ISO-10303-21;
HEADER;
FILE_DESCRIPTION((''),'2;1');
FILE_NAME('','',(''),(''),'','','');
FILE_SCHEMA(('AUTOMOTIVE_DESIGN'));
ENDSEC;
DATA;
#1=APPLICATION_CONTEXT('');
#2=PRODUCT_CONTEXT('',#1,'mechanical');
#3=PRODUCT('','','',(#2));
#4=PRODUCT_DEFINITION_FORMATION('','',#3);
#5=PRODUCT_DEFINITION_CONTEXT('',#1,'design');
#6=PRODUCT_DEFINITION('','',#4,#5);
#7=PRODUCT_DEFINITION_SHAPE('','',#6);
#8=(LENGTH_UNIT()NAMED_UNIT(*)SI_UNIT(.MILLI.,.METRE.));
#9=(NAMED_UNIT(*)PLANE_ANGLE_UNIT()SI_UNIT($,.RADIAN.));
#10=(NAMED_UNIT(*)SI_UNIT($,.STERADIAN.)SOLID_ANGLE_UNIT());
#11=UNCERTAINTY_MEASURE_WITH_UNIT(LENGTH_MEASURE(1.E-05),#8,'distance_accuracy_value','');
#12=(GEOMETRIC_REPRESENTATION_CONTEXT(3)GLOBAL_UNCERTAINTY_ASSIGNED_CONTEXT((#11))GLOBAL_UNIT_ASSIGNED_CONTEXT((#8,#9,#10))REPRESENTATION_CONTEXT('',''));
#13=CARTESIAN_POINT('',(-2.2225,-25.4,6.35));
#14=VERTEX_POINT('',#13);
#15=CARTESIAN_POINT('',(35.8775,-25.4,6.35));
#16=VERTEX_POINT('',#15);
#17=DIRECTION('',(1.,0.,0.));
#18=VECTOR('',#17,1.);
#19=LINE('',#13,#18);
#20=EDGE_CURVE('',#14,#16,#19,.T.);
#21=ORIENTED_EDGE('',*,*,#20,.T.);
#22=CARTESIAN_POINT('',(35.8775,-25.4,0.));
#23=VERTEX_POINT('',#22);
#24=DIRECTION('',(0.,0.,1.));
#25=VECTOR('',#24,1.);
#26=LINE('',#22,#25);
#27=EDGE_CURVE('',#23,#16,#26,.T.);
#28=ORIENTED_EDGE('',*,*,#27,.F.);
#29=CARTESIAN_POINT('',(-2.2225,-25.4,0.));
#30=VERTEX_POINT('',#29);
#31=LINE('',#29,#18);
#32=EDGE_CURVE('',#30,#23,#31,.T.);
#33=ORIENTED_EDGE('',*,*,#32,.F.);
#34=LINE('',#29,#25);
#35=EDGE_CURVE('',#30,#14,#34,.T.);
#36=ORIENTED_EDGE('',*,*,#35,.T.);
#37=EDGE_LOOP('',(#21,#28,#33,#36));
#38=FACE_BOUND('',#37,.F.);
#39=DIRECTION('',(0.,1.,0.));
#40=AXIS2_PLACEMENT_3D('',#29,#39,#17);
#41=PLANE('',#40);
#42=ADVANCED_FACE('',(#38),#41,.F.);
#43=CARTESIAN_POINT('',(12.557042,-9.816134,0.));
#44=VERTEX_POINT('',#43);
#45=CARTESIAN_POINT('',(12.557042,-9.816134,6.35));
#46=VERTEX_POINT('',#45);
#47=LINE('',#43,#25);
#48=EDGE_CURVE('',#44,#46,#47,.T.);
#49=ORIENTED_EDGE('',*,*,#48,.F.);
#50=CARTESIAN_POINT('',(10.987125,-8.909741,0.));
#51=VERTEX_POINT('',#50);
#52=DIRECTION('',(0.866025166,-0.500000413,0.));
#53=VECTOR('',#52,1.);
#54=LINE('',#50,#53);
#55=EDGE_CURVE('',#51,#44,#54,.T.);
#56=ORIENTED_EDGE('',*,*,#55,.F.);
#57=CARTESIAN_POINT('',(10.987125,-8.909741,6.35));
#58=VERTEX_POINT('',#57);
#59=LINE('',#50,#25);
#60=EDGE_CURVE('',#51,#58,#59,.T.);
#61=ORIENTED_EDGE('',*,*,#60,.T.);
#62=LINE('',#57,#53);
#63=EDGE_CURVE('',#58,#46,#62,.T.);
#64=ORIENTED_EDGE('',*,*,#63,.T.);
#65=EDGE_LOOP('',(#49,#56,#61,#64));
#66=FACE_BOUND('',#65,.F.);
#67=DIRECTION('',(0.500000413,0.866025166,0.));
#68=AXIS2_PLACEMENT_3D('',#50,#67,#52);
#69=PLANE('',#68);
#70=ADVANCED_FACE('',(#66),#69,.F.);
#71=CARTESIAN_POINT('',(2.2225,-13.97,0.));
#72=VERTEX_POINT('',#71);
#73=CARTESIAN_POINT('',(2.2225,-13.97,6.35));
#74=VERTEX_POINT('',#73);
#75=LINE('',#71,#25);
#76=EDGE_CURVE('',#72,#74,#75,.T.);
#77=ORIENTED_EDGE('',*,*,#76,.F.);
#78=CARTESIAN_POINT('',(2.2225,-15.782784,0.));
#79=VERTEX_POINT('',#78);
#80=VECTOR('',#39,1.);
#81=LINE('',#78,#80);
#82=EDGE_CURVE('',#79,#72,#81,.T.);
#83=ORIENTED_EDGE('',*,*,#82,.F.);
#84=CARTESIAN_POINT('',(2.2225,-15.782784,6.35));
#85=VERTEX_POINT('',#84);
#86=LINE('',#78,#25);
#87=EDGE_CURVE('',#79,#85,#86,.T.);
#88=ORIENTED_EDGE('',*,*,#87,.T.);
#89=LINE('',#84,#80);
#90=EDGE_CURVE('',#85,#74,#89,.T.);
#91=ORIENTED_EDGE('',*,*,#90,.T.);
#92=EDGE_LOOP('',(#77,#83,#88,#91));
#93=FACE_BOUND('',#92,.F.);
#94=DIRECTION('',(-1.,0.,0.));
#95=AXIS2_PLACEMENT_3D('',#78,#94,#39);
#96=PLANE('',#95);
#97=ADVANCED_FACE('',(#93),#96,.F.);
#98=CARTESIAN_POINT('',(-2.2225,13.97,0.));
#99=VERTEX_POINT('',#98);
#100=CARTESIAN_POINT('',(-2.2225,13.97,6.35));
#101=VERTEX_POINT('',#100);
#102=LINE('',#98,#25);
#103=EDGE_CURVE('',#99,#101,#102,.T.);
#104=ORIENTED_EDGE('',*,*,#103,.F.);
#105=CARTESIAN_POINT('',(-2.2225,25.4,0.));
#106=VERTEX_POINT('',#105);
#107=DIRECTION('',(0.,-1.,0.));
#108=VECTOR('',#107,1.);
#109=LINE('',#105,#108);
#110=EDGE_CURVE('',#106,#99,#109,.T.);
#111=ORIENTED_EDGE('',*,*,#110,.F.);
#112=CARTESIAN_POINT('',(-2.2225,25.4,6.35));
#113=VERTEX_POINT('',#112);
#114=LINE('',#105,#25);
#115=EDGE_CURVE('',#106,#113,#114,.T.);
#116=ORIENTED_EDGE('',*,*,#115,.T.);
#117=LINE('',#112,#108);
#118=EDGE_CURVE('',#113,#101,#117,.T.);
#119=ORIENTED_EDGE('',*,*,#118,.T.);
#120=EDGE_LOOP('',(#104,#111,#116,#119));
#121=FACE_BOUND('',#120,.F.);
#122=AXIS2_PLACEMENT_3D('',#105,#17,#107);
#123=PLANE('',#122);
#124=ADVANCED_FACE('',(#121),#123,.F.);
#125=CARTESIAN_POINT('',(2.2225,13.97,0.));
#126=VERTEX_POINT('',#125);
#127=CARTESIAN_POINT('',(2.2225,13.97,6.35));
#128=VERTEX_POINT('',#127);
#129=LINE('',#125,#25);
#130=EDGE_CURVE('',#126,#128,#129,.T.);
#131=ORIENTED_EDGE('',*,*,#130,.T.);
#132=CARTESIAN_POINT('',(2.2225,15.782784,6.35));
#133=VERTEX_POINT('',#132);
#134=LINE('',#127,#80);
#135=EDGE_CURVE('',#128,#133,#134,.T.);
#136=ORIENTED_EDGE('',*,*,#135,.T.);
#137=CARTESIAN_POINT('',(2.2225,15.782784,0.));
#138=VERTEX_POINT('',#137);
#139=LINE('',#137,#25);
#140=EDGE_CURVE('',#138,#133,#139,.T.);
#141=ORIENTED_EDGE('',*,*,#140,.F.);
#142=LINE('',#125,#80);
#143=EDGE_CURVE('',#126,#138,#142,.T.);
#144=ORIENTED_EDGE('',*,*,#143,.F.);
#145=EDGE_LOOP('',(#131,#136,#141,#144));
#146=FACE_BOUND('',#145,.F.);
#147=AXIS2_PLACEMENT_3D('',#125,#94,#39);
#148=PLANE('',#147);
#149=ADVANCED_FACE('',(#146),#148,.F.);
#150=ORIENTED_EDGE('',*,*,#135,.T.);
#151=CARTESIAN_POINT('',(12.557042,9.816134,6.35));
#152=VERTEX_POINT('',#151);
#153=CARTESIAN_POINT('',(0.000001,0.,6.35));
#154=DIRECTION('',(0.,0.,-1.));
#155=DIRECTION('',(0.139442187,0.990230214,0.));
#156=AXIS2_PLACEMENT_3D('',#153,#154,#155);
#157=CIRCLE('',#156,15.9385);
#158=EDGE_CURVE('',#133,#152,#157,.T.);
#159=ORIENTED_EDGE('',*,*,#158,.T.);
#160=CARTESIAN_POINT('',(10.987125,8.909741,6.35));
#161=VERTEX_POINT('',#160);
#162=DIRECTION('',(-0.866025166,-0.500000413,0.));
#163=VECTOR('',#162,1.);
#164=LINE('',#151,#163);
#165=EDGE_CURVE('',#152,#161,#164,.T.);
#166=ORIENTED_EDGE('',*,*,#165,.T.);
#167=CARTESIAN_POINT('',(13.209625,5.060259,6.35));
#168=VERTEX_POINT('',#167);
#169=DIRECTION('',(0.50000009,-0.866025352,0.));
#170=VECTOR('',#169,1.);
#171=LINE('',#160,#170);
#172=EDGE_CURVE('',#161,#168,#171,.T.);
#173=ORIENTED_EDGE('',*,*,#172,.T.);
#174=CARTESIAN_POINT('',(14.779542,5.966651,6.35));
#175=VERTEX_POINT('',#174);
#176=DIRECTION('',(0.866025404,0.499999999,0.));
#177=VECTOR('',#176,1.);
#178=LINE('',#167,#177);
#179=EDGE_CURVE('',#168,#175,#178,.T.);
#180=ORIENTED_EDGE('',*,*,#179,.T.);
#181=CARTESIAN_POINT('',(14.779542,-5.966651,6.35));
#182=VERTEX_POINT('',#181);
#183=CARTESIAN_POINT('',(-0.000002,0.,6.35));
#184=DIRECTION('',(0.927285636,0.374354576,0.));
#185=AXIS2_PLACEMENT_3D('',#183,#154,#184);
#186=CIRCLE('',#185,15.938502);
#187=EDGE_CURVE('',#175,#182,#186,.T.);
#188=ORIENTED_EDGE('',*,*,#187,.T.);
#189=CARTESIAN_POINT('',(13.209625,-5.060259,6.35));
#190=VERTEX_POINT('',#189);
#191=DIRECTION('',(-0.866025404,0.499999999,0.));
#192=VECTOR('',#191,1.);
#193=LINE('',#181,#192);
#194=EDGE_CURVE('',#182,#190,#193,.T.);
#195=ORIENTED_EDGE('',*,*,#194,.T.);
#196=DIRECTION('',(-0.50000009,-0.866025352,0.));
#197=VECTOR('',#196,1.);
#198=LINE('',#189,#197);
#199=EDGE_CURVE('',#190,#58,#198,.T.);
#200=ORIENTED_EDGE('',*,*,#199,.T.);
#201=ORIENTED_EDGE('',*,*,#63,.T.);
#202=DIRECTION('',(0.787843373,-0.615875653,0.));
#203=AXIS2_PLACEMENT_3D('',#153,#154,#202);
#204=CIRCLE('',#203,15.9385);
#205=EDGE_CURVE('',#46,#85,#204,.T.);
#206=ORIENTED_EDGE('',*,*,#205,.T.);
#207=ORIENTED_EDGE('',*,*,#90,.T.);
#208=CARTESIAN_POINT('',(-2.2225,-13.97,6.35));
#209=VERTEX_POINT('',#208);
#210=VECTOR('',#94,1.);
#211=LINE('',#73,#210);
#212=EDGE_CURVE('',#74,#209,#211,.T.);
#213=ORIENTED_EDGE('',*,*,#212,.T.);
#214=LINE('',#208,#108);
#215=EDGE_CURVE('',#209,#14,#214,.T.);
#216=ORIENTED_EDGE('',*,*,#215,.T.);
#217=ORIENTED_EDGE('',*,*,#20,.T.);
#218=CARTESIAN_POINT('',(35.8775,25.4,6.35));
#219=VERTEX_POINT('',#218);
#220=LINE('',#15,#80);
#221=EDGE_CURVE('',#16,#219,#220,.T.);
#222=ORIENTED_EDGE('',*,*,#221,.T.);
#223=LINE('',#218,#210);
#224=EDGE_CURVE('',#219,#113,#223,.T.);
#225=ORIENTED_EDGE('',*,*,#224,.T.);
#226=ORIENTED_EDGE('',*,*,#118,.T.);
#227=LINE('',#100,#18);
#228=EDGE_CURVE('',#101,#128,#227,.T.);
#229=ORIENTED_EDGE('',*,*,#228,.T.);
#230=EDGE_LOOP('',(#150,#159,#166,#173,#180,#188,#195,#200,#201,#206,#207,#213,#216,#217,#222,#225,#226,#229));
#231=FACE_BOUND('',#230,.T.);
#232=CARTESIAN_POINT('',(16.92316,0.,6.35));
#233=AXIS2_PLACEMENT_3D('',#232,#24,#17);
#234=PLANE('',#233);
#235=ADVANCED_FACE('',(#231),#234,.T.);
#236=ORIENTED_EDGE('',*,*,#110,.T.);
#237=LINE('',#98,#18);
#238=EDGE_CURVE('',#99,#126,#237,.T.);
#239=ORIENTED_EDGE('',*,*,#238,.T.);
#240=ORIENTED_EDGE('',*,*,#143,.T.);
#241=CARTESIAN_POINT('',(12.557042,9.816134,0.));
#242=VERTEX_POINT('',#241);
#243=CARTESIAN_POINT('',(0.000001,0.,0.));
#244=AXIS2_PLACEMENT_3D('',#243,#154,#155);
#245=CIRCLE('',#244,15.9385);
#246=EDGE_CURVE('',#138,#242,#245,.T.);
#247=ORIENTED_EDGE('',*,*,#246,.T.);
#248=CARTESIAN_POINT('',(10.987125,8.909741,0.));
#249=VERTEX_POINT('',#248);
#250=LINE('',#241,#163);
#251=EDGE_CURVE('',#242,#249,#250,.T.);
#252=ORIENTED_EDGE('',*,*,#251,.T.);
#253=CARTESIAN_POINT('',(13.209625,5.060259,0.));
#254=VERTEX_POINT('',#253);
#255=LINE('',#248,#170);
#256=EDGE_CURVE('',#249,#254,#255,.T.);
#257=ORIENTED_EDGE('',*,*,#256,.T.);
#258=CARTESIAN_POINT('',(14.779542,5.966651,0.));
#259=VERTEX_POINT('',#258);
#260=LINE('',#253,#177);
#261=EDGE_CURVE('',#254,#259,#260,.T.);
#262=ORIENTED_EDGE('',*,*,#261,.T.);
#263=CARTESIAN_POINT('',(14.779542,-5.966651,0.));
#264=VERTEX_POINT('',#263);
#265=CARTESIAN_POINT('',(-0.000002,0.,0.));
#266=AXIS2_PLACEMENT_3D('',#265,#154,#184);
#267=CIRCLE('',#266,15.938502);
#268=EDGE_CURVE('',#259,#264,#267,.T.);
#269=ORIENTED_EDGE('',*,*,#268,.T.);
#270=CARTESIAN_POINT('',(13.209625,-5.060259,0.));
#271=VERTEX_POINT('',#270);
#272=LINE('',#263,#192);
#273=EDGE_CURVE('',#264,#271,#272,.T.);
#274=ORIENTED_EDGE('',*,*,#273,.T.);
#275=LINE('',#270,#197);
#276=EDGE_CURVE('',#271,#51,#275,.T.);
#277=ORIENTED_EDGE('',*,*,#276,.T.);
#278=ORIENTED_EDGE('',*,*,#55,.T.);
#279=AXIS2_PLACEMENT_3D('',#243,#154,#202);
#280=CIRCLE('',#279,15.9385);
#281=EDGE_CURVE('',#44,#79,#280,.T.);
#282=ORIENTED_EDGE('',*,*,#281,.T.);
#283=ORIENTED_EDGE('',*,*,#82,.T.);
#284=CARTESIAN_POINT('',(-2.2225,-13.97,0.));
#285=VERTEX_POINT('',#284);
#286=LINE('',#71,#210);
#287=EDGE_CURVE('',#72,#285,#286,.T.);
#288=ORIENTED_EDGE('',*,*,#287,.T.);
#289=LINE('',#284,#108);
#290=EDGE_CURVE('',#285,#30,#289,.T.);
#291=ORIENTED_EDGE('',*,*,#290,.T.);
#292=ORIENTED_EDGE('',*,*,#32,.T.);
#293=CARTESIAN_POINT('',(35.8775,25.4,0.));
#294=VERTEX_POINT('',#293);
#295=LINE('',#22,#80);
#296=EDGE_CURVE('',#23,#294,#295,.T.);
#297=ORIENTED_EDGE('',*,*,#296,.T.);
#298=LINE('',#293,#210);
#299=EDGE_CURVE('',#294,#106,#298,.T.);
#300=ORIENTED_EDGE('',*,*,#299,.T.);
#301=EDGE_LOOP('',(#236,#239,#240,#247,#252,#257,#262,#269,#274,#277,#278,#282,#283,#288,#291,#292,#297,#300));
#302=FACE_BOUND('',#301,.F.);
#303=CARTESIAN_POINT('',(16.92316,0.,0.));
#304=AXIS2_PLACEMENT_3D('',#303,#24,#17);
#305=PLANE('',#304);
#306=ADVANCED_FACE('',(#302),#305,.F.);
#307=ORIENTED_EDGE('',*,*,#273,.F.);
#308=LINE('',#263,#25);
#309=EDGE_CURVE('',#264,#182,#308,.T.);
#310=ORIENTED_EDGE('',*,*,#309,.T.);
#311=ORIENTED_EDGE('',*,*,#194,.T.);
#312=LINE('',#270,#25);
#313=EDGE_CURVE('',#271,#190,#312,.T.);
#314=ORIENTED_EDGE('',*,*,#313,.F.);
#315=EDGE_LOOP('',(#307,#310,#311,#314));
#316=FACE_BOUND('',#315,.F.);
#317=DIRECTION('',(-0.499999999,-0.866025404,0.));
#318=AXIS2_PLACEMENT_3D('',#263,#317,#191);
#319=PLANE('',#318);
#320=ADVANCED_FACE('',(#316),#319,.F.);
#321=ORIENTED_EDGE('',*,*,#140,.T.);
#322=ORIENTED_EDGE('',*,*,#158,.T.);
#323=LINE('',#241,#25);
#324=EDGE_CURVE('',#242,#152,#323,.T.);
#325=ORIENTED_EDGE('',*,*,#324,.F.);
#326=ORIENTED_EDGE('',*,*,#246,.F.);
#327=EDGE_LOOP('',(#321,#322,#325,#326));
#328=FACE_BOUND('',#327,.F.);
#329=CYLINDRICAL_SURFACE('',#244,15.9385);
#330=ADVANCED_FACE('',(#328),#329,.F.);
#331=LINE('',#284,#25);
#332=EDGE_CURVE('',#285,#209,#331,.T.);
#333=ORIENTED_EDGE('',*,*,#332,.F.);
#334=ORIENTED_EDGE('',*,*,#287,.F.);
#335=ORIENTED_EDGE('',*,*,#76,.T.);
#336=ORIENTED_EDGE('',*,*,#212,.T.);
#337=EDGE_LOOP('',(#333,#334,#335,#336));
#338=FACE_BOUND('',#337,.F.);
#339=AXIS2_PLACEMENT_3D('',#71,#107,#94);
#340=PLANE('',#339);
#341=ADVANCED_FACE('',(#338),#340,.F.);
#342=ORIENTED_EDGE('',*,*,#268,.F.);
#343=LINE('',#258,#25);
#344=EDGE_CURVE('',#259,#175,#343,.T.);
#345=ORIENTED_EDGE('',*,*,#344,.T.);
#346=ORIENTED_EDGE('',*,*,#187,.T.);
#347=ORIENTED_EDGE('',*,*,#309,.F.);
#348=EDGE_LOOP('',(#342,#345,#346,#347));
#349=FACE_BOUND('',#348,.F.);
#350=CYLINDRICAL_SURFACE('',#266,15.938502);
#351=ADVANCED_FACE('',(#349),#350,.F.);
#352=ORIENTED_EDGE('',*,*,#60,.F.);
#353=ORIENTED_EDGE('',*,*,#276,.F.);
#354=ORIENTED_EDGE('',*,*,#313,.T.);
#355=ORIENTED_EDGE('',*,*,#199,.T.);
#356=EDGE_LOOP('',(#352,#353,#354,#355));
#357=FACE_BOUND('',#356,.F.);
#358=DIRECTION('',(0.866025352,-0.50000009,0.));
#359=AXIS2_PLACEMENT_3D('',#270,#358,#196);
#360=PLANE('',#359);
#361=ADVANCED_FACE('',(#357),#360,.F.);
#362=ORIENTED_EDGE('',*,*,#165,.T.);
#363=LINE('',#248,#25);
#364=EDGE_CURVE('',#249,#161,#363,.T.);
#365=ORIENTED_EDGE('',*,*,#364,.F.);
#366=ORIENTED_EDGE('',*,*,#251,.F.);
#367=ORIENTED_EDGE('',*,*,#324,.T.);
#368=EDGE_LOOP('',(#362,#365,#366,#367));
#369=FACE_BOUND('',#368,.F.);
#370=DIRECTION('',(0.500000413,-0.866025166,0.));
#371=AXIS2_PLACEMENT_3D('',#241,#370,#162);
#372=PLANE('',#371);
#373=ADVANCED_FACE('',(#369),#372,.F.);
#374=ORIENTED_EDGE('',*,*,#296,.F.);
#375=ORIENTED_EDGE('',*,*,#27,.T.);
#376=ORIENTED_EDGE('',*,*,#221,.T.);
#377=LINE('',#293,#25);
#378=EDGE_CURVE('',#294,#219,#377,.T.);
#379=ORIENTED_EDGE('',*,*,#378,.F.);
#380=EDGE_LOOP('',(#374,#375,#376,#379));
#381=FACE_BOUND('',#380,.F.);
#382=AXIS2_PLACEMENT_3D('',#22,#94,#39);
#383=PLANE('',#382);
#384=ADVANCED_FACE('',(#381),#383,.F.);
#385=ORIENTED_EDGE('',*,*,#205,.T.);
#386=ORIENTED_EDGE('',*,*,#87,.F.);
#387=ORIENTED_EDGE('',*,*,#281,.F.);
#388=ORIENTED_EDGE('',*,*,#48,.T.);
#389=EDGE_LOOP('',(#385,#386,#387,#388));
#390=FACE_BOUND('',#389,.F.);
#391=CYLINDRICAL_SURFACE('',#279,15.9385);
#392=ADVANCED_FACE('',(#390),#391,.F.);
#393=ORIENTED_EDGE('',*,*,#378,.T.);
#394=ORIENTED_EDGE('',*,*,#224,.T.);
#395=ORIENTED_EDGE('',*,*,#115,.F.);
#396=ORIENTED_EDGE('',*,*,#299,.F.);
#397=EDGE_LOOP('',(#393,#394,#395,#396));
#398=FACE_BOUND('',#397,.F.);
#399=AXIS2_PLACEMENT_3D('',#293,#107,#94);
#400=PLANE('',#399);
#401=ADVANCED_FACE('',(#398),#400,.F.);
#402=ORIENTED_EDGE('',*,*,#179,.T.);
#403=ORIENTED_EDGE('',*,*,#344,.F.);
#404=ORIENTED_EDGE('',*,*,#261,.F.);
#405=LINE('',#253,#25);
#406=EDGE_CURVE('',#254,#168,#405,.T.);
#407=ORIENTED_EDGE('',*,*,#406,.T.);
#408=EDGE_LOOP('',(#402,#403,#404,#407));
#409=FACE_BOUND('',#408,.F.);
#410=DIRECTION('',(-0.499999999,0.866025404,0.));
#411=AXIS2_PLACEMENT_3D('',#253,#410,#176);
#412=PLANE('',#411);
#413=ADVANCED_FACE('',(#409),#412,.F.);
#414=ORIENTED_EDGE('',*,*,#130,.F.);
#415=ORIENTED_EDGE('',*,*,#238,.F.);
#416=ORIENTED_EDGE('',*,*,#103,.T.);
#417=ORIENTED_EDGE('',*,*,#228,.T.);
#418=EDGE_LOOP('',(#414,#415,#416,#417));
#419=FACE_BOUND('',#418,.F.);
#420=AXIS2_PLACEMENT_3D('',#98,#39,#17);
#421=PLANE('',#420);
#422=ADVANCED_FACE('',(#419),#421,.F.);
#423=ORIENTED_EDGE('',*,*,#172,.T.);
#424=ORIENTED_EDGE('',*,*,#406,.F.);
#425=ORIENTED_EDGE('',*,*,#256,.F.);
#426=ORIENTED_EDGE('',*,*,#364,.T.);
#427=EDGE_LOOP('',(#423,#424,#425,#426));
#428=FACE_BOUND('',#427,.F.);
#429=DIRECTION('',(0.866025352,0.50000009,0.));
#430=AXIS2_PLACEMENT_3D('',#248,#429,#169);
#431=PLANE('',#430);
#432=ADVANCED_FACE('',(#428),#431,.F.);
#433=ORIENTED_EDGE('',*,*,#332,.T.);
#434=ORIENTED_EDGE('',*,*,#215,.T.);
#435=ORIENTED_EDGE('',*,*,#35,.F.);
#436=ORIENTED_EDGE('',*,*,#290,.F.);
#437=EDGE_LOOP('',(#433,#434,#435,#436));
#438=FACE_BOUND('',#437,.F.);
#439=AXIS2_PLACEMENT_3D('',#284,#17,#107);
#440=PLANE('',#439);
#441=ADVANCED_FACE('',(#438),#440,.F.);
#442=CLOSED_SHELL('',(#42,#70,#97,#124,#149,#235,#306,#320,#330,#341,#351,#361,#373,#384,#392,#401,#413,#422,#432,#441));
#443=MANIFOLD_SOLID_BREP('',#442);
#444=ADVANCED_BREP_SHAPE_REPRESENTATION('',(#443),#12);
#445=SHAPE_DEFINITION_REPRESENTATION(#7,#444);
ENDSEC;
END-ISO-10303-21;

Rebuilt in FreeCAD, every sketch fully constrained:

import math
import FreeCAD as App
import Part
import Sketcher

V = App.Vector
Q = App.Units.Quantity

doc = App.newDocument("Part")
body = doc.addObject("PartDesign::Body", "Body")

sketch1 = body.newObject("Sketcher::SketchObject", "Sketch")
sketch1.AttachmentSupport = (doc.getObject("XY_Plane"), [""])
sketch1.MapMode = "FlatFace"
sketch1.addGeometry([
    Part.LineSegment(V(-2.2, 14, 0), V(2.2, 14, 0)),
    Part.LineSegment(V(2.2, 14, 0), V(2.2, 15.8, 0)),
    Part.ArcOfCircle(Part.Circle(V(0, 0, 0), V(0, 0, 1), 15.9), math.radians(38), math.radians(82)),
    Part.LineSegment(V(12.6, 9.8, 0), V(11, 8.9, 0)),
    Part.LineSegment(V(11, 8.9, 0), V(13.2, 5.1, 0)),
    Part.LineSegment(V(13.2, 5.1, 0), V(14.8, 6, 0)),
    Part.ArcOfCircle(Part.Circle(V(0, 0, 0), V(0, 0, 1), 15.9), math.radians(-22), math.radians(22)),
    Part.LineSegment(V(14.8, -6, 0), V(13.2, -5.1, 0)),
    Part.LineSegment(V(13.2, -5.1, 0), V(11, -8.9, 0)),
    Part.LineSegment(V(11, -8.9, 0), V(12.6, -9.8, 0)),
    Part.ArcOfCircle(Part.Circle(V(0, 0, 0), V(0, 0, 1), 15.9), math.radians(-82), math.radians(-38)),
    Part.LineSegment(V(2.2, -15.8, 0), V(2.2, -14, 0)),
    Part.LineSegment(V(2.2, -14, 0), V(-2.2, -14, 0)),
    Part.LineSegment(V(-2.2, -14, 0), V(-2.2, -25.4, 0)),
    Part.LineSegment(V(-2.2, -25.4, 0), V(35.9, -25.4, 0)),
    Part.LineSegment(V(35.9, -25.4, 0), V(35.9, 25.4, 0)),
    Part.LineSegment(V(35.9, 25.4, 0), V(-2.2, 25.4, 0)),
    Part.LineSegment(V(-2.2, 25.4, 0), V(-2.2, 14, 0)),
], False)
sketch1.addConstraint([
    Sketcher.Constraint("Coincident", 0, 2, 1, 1),
    Sketcher.Constraint("Coincident", 1, 2, 2, 2),
    Sketcher.Constraint("Coincident", 2, 1, 3, 1),
    Sketcher.Constraint("Coincident", 3, 2, 4, 1),
    Sketcher.Constraint("Coincident", 4, 2, 5, 1),
    Sketcher.Constraint("Coincident", 5, 2, 6, 2),
    Sketcher.Constraint("Coincident", 6, 1, 7, 1),
    Sketcher.Constraint("Coincident", 7, 2, 8, 1),
    Sketcher.Constraint("Coincident", 8, 2, 9, 1),
    Sketcher.Constraint("Coincident", 9, 2, 10, 2),
    Sketcher.Constraint("Coincident", 10, 1, 11, 1),
    Sketcher.Constraint("Coincident", 11, 2, 12, 1),
    Sketcher.Constraint("Coincident", 12, 2, 13, 1),
    Sketcher.Constraint("Coincident", 13, 2, 14, 1),
    Sketcher.Constraint("Coincident", 14, 2, 15, 1),
    Sketcher.Constraint("Coincident", 15, 2, 16, 1),
    Sketcher.Constraint("Coincident", 16, 2, 17, 1),
    Sketcher.Constraint("Coincident", 17, 2, 0, 1),
    Sketcher.Constraint("Horizontal", 0),
    Sketcher.Constraint("Vertical", 1),
    Sketcher.Constraint("Vertical", 11),
    Sketcher.Constraint("Horizontal", 12),
    Sketcher.Constraint("Vertical", 13),
    Sketcher.Constraint("Horizontal", 14),
    Sketcher.Constraint("Vertical", 15),
    Sketcher.Constraint("Horizontal", 16),
    Sketcher.Constraint("Vertical", 17),
    Sketcher.Constraint("Coincident", 2, 3, -1, 1),
    Sketcher.Constraint("Coincident", 6, 3, -1, 1),
    Sketcher.Constraint("Coincident", 10, 3, -1, 1),
    Sketcher.Constraint("Equal", 2, 10),
    Sketcher.Constraint("Symmetric", 0, 2, 12, 2, -1, 1),
    Sketcher.Constraint("Symmetric", 4, 2, 7, 2, -1),
    Sketcher.Constraint("Symmetric", 3, 2, 8, 2, -1),
    Sketcher.Constraint("Symmetric", 13, 2, 16, 2, -1),
    Sketcher.Constraint("Perpendicular", 3, 4),
    Sketcher.Constraint("Perpendicular", 4, 5),
    Sketcher.Constraint("Perpendicular", 7, 8),
    Sketcher.Constraint("Perpendicular", 8, 9),
    Sketcher.Constraint("Vertical", 1, 2, 10, 1),
    Sketcher.Constraint("Equal", 3, 5),
    Sketcher.Constraint("DistanceY", 15, 1, 15, 2, Q("2 in")),
    Sketcher.Constraint("DistanceX", 14, 1, 14, 2, Q("1.5 in")),
    Sketcher.Constraint("Angle", 4, Q("-59.999994 deg")),
    Sketcher.Constraint("DistanceY", 13, 2, 13, 1, Q("0.45 in")),
    Sketcher.Constraint("Radius", 2, Q("0.6275 in")),
    Sketcher.Constraint("Radius", 6, Q("0.6275001 in")),
    Sketcher.Constraint("DistanceX", 0, 1, 0, 2, Q("0.175 in")),
    Sketcher.Constraint("DistanceY", 8, 2, 4, 2, Q("0.55 in")),
    Sketcher.Constraint("Distance", 4, Q("0.175 in")),
])
pad1 = body.newObject("PartDesign::Pad", "Pad")
pad1.Profile = sketch1
pad1.Length = Q("0.25 in")

doc.recompute()
